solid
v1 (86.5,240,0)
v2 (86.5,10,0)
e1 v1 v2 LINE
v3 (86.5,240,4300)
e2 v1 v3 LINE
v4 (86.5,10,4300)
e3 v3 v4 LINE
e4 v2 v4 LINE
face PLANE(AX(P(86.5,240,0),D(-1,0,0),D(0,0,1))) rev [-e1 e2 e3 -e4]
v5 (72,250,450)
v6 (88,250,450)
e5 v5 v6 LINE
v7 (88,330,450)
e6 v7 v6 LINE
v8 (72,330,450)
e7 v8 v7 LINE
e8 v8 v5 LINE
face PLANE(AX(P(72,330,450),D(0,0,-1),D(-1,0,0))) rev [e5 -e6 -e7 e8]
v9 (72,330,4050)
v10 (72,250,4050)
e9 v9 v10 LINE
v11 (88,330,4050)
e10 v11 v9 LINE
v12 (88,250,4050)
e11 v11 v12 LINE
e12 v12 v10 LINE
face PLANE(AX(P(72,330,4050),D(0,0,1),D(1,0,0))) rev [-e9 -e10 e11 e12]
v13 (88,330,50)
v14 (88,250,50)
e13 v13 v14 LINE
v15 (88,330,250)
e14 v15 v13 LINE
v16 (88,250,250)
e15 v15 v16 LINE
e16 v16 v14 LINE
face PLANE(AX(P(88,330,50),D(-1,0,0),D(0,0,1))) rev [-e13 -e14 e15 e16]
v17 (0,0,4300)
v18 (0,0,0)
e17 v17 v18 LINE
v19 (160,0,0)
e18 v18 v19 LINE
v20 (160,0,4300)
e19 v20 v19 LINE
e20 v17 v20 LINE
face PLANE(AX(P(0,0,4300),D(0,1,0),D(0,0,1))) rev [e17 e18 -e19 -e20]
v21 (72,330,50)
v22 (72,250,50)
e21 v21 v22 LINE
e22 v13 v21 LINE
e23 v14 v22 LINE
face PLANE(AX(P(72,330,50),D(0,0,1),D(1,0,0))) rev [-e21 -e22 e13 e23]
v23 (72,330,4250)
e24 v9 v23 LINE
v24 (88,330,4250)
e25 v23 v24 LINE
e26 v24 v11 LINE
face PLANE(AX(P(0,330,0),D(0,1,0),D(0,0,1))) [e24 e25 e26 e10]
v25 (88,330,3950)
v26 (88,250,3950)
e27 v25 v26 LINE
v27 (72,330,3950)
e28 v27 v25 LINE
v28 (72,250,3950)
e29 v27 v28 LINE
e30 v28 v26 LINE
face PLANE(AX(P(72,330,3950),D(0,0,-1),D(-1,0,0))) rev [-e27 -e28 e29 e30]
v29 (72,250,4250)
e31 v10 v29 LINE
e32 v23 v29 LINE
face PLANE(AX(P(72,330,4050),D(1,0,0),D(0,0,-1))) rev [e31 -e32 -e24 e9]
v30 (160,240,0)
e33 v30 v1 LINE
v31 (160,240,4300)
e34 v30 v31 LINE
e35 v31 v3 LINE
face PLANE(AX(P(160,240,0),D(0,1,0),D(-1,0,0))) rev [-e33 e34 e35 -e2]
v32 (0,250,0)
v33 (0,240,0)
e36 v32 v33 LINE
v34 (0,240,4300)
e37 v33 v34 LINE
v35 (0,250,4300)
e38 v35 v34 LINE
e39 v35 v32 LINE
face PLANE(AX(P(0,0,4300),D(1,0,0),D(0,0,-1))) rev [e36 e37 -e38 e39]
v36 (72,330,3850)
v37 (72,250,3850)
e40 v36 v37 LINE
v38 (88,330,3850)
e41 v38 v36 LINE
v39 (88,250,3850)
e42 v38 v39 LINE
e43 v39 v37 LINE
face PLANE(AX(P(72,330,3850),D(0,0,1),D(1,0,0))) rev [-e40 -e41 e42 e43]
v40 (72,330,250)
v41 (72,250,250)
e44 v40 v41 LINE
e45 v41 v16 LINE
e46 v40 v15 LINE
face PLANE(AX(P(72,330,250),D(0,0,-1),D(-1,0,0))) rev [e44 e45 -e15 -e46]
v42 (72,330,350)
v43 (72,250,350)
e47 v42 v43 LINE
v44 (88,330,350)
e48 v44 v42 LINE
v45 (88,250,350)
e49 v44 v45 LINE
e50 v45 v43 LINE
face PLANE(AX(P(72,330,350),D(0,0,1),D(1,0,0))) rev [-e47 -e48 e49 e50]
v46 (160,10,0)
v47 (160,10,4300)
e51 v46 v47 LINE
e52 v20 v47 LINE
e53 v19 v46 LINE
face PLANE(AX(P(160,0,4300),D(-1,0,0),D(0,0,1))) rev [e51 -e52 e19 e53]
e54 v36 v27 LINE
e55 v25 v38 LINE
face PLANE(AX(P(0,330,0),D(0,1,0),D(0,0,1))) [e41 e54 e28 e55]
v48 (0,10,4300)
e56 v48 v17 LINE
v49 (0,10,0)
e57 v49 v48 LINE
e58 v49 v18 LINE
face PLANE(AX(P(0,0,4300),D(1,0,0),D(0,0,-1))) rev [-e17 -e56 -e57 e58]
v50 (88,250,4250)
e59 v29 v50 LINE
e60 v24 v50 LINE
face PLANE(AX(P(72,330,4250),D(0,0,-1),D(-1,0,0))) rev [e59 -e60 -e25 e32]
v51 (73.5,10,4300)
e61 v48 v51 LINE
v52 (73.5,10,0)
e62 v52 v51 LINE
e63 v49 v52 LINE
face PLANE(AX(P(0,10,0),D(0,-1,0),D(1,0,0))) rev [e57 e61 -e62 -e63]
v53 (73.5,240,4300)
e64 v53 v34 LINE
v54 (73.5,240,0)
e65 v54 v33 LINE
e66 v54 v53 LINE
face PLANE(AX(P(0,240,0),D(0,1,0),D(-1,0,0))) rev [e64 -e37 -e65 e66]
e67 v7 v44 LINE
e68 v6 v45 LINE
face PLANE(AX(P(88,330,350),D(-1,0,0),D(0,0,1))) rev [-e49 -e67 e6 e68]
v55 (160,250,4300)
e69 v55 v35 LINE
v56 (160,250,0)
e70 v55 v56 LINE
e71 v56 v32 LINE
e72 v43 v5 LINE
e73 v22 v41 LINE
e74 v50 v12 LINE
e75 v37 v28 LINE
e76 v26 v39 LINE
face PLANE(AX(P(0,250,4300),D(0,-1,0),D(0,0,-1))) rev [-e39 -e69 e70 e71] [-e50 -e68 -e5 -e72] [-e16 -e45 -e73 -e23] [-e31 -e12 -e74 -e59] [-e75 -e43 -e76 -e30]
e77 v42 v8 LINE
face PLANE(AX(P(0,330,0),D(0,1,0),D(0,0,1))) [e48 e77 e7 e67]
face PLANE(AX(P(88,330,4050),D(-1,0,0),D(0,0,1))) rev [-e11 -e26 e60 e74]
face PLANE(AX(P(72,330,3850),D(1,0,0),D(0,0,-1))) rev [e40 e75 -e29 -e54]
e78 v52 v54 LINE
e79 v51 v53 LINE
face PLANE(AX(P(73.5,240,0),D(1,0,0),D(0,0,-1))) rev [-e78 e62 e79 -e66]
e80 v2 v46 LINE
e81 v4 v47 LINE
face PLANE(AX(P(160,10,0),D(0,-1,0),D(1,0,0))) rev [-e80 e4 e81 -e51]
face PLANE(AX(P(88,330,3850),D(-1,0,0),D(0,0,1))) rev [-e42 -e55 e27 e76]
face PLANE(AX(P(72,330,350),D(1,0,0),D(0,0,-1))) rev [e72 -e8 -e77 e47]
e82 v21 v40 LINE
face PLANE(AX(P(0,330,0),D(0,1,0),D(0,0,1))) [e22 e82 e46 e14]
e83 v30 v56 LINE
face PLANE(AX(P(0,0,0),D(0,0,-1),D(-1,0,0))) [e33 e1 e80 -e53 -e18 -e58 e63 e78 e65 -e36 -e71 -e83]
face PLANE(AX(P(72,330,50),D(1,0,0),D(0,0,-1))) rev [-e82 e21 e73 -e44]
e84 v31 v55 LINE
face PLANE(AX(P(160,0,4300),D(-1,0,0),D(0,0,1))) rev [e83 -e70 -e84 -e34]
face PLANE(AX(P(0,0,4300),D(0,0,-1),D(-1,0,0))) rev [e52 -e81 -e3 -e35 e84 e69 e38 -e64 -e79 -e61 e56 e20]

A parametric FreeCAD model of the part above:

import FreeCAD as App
import Part
import Sketcher
from FreeCAD import Vector

doc = App.newDocument("Part")
params = doc.addObject("Spreadsheet::Sheet", "Params")
for row, (alias, value) in enumerate([
    ("sketch1_width", "160 mm"),
    ("sketch1_height", "250 mm"),
    ("pad1_length", "4300 mm"),
    ("sketch2_height", "230 mm"),
    ("sketch2_width", "73.5 mm"),
    ("sketch3_width", "16 mm"),
    ("sketch3_height", "200 mm"),
    ("sketch3_height2", "100 mm"),
    ("pad2_length", "80 mm"),
], start=1):
    params.set(f"A{row}", alias)
    params.set(f"B{row}", "=" + value)
    params.setAlias(f"B{row}", alias)

body = doc.addObject("PartDesign::Body", "Body")

# Sketch on XY plane
sketch1 = doc.addObject("Sketcher::SketchObject", "Sketch")
body.addObject(sketch1)
sketch1.AttachmentSupport = (doc.XY_Plane, [""])
sketch1.MapMode = "FlatFace"
sketch1.addGeometry([
    Part.LineSegment(Vector(0, 250, 0), Vector(0, 0, 0)),
    Part.LineSegment(Vector(0, 0, 0), Vector(160, 0, 0)),
    Part.LineSegment(Vector(160, 0, 0), Vector(160, 250, 0)),
    Part.LineSegment(Vector(160, 250, 0), Vector(0, 250, 0)),
], False)
sketch1.addConstraint([
    Sketcher.Constraint("Coincident", 0, 2, 1, 1),
    Sketcher.Constraint("Coincident", 1, 2, 2, 1),
    Sketcher.Constraint("Coincident", 2, 2, 3, 1),
    Sketcher.Constraint("Coincident", 3, 2, 0, 1),
    Sketcher.Constraint("Vertical", 0),
    Sketcher.Constraint("Horizontal", 1),
    Sketcher.Constraint("Vertical", 2),
    Sketcher.Constraint("Horizontal", 3),
    Sketcher.Constraint("Coincident", 0, 2, -1, 1),
    Sketcher.Constraint("DistanceX", 1, 1, 1, 2, 160.0),
    Sketcher.Constraint("DistanceY", 0, 2, 0, 1, 250.0),
])
sketch1.setExpression("Constraints[9]", "Params.sketch1_width")
sketch1.setExpression("Constraints[10]", "Params.sketch1_height")
pad1 = doc.addObject("PartDesign::Pad", "Pad")
body.addObject(pad1)
pad1.Profile = sketch1
pad1.setExpression("Length", "Params.pad1_length")

# Sketch on XY plane
sketch2 = doc.addObject("Sketcher::SketchObject", "Sketch001")
body.addObject(sketch2)
sketch2.AttachmentSupport = (doc.XY_Plane, [""])
sketch2.MapMode = "FlatFace"
sketch2.AttachmentOffset = App.Placement(Vector(0, 0, 4300), App.Rotation())
sketch2.addGeometry([
    Part.LineSegment(Vector(86, 240, 0), Vector(86, 10, 0)),  # 0
    Part.LineSegment(Vector(86, 10, 0), Vector(160, 10, 0)),  # 1
    Part.LineSegment(Vector(160, 10, 0), Vector(160, 240, 0)),  # 2
    Part.LineSegment(Vector(160, 240, 0), Vector(86, 240, 0)),  # 3
    Part.LineSegment(Vector(0, 240, 0), Vector(0, 10, 0)),  # 4
    Part.LineSegment(Vector(0, 10, 0), Vector(74, 10, 0)),  # 5
    Part.LineSegment(Vector(74, 10, 0), Vector(74, 240, 0)),  # 6
    Part.LineSegment(Vector(74, 240, 0), Vector(0, 240, 0)),  # 7
], False)
sketch2.addConstraint([
    Sketcher.Constraint("Coincident", 0, 2, 1, 1),
    Sketcher.Constraint("Coincident", 1, 2, 2, 1),
    Sketcher.Constraint("Coincident", 2, 2, 3, 1),
    Sketcher.Constraint("Coincident", 3, 2, 0, 1),
    Sketcher.Constraint("Coincident", 4, 2, 5, 1),
    Sketcher.Constraint("Coincident", 5, 2, 6, 1),
    Sketcher.Constraint("Coincident", 6, 2, 7, 1),
    Sketcher.Constraint("Coincident", 7, 2, 4, 1),
    Sketcher.Constraint("Vertical", 0),
    Sketcher.Constraint("Horizontal", 1),
    Sketcher.Constraint("Vertical", 2),
    Sketcher.Constraint("Horizontal", 3),
    Sketcher.Constraint("Vertical", 4),
    Sketcher.Constraint("Horizontal", 5),
    Sketcher.Constraint("Vertical", 6),
    Sketcher.Constraint("Horizontal", 7),
    Sketcher.Constraint("PointOnObject", 4, 2, -2),
    Sketcher.Constraint("Horizontal", 1, 2, 4, 2),
    Sketcher.Constraint("Horizontal", 3, 2, 6, 2),
    Sketcher.Constraint("Equal", 3, 5),
    Sketcher.Constraint("DistanceY", 0, 2, 0, 1, 230.0),
    Sketcher.Constraint("DistanceX", 1, 1, 1, 2, 73.5),
    Sketcher.Constraint("DistanceY", -1, 1, 0, 2, 10.0),
    Sketcher.Constraint("DistanceX", -1, 1, 1, 2, 160.0),
])
sketch2.setExpression("Constraints[20]", "Params.sketch2_height")
sketch2.setExpression("Constraints[21]", "Params.sketch2_width")
pocket1 = doc.addObject("PartDesign::Pocket", "Pocket")
body.addObject(pocket1)
pocket1.Profile = sketch2
pocket1.Type = "ThroughAll"

# Sketch on XZ plane
sketch3 = doc.addObject("Sketcher::SketchObject", "Sketch002")
body.addObject(sketch3)
sketch3.AttachmentSupport = (doc.XZ_Plane, [""])
sketch3.MapMode = "FlatFace"
sketch3.AttachmentOffset = App.Placement(Vector(0, 0, -250), App.Rotation())
sketch3.addGeometry([
    Part.LineSegment(Vector(72, 50, 0), Vector(72, 250, 0)),  # 0
    Part.LineSegment(Vector(72, 250, 0), Vector(88, 250, 0)),  # 1
    Part.LineSegment(Vector(88, 250, 0), Vector(88, 50, 0)),  # 2
    Part.LineSegment(Vector(88, 50, 0), Vector(72, 50, 0)),  # 3
    Part.LineSegment(Vector(72, 350, 0), Vector(72, 450, 0)),  # 4
    Part.LineSegment(Vector(72, 450, 0), Vector(88, 450, 0)),  # 5
    Part.LineSegment(Vector(88, 450, 0), Vector(88, 350, 0)),  # 6
    Part.LineSegment(Vector(88, 350, 0), Vector(72, 350, 0)),  # 7
    Part.LineSegment(Vector(72, 4050, 0), Vector(72, 4250, 0)),  # 8
    Part.LineSegment(Vector(72, 4250, 0), Vector(88, 4250, 0)),  # 9
    Part.LineSegment(Vector(88, 4250, 0), Vector(88, 4050, 0)),  # 10
    Part.LineSegment(Vector(88, 4050, 0), Vector(72, 4050, 0)),  # 11
    Part.LineSegment(Vector(72, 3850, 0), Vector(72, 3950, 0)),  # 12
    Part.LineSegment(Vector(72, 3950, 0), Vector(88, 3950, 0)),  # 13
    Part.LineSegment(Vector(88, 3950, 0), Vector(88, 3850, 0)),  # 14
    Part.LineSegment(Vector(88, 3850, 0), Vector(72, 3850, 0)),  # 15
], False)
sketch3.addConstraint([
    Sketcher.Constraint("Coincident", 0, 2, 1, 1),
    Sketcher.Constraint("Coincident", 1, 2, 2, 1),
    Sketcher.Constraint("Coincident", 2, 2, 3, 1),
    Sketcher.Constraint("Coincident", 3, 2, 0, 1),
    Sketcher.Constraint("Coincident", 4, 2, 5, 1),
    Sketcher.Constraint("Coincident", 5, 2, 6, 1),
    Sketcher.Constraint("Coincident", 6, 2, 7, 1),
    Sketcher.Constraint("Coincident", 7, 2, 4, 1),
    Sketcher.Constraint("Coincident", 8, 2, 9, 1),
    Sketcher.Constraint("Coincident", 9, 2, 10, 1),
    Sketcher.Constraint("Coincident", 10, 2, 11, 1),
    Sketcher.Constraint("Coincident", 11, 2, 8, 1),
    Sketcher.Constraint("Coincident", 12, 2, 13, 1),
    Sketcher.Constraint("Coincident", 13, 2, 14, 1),
    Sketcher.Constraint("Coincident", 14, 2, 15, 1),
    Sketcher.Constraint("Coincident", 15, 2, 12, 1),
    Sketcher.Constraint("Vertical", 0),
    Sketcher.Constraint("Horizontal", 1),
    Sketcher.Constraint("Vertical", 2),
    Sketcher.Constraint("Horizontal", 3),
    Sketcher.Constraint("Vertical", 4),
    Sketcher.Constraint("Horizontal", 5),
    Sketcher.Constraint("Vertical", 6),
    Sketcher.Constraint("Horizontal", 7),
    Sketcher.Constraint("Vertical", 8),
    Sketcher.Constraint("Horizontal", 9),
    Sketcher.Constraint("Vertical", 10),
    Sketcher.Constraint("Horizontal", 11),
    Sketcher.Constraint("Vertical", 12),
    Sketcher.Constraint("Horizontal", 13),
    Sketcher.Constraint("Vertical", 14),
    Sketcher.Constraint("Horizontal", 15),
    Sketcher.Constraint("Vertical", 3, 2, 4, 2),
    Sketcher.Constraint("Vertical", 2, 2, 5, 2),
    Sketcher.Constraint("Vertical", 7, 2, 8, 2),
    Sketcher.Constraint("Vertical", 6, 2, 9, 2),
    Sketcher.Constraint("Vertical", 11, 2, 12, 2),
    Sketcher.Constraint("Vertical", 10, 2, 13, 2),
    Sketcher.Constraint("Equal", 2, 8),
    Sketcher.Constraint("Equal", 6, 12),
    Sketcher.Constraint("DistanceX", 1, 1, 1, 2, 16.0),
    Sketcher.Constraint("DistanceY", 0, 1, 0, 2, 200.0),
    Sketcher.Constraint("DistanceY", 4, 1, 4, 2, 100.0),
    Sketcher.Constraint("DistanceX", -1, 1, 0, 2, 72.0),
    Sketcher.Constraint("DistanceY", -1, 1, 0, 2, 250.0),
    Sketcher.Constraint("DistanceY", -1, 1, 4, 2, 450.0),
    Sketcher.Constraint("DistanceY", -1, 1, 8, 2, 4250.0),
    Sketcher.Constraint("DistanceY", -1, 1, 12, 2, 3950.0),
])
sketch3.setExpression("Constraints[40]", "Params.sketch3_width")
sketch3.setExpression("Constraints[41]", "Params.sketch3_height")
sketch3.setExpression("Constraints[42]", "Params.sketch3_height2")
pad2 = doc.addObject("PartDesign::Pad", "Pad001")
body.addObject(pad2)
pad2.Profile = sketch3
pad2.setExpression("Length", "Params.pad2_length")
pad2.Reversed = True

doc.recompute()
